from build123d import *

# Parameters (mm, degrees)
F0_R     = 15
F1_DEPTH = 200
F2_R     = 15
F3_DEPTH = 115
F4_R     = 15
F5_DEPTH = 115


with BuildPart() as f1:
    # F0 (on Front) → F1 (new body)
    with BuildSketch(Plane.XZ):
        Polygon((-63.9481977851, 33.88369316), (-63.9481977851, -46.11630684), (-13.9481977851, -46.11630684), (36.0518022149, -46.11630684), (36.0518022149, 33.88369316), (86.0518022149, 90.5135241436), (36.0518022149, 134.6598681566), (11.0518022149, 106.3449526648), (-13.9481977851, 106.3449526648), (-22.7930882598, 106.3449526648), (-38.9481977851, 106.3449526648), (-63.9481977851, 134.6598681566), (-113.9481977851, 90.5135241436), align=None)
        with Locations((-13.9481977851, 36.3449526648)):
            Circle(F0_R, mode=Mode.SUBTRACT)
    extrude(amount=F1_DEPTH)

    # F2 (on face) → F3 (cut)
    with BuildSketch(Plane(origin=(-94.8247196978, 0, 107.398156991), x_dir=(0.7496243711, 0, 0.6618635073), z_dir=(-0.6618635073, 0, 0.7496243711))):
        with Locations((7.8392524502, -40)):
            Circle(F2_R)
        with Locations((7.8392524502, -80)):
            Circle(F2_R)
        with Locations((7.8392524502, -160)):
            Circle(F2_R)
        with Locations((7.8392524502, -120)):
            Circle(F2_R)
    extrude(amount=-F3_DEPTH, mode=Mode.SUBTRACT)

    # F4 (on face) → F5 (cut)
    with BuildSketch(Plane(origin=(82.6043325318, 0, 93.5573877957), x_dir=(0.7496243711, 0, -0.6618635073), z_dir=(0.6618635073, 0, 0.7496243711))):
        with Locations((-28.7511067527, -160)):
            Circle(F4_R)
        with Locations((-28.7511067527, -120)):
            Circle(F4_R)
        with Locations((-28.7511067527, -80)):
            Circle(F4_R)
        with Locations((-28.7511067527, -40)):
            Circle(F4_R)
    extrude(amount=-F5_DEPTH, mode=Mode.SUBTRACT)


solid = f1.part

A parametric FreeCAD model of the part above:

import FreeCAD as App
import Part
import Sketcher

V = App.Vector
Q = App.Units.Quantity


def add_polygon(sketch, points):
    """Adds a closed chain of lines whose ends are joined by coincident constraints."""
    first, n = sketch.GeometryCount, len(points)
    for a, b in zip(points, points[1:] + points[:1]):
        sketch.addGeometry(Part.LineSegment(App.Vector(*a, 0), App.Vector(*b, 0)), False)
    for i in range(n):
        sketch.addConstraint(Sketcher.Constraint("Coincident", first + i, 2, first + (i + 1) % n, 1))

doc = App.newDocument("Part")
body = doc.addObject("PartDesign::Body", "Body")

# Sketch on XZ plane
sketch1 = doc.addObject("Sketcher::SketchObject", "Sketch")
body.addObject(sketch1)
sketch1.AttachmentSupport = (doc.XZ_Plane, [""])
sketch1.MapMode = "FlatFace"
add_polygon(sketch1, [(-64, 34), (-64, -46), (36, -46), (36, 34), (86, 91), (36, 135), (11, 106), (-39, 106), (-64, 135), (-114, 91)])  # lines 0-9
sketch1.addGeometry(Part.Circle(V(-14, 36, 0), V(0, 0, 1), 15), False)  # 10
sketch1.addConstraint([
    Sketcher.Constraint("Vertical", 0),
    Sketcher.Constraint("Horizontal", 1),
    Sketcher.Constraint("Vertical", 2),
    Sketcher.Constraint("Horizontal", 6),
    Sketcher.Constraint("Perpendicular", 3, 4),
    Sketcher.Constraint("Perpendicular", 4, 5),
    Sketcher.Constraint("Perpendicular", 7, 8),
    Sketcher.Constraint("Perpendicular", 8, 9),
    Sketcher.Constraint("Horizontal", 4, 2, 7, 2),
    Sketcher.Constraint("Horizontal", 3, 2, 8, 2),
    Sketcher.Constraint("Horizontal", 2, 2, 9, 2),
    Sketcher.Constraint("Vertical", 2, 2, 4, 2),
    Sketcher.Constraint("Vertical", 0, 2, 7, 2),
    Sketcher.Constraint("Diameter", 10, Q("30 mm")),
    Sketcher.Constraint("DistanceX", 1, 1, 1, 2, Q("100 mm")),
    Sketcher.Constraint("DistanceX", 6, 2, 6, 1, Q("50 mm")),
    Sketcher.Constraint("DistanceY", 0, 2, 0, 1, Q("80 mm")),
    Sketcher.Constraint("DistanceX", 0, 2, 10, 3, Q("50 mm")),
    Sketcher.Constraint("DistanceX", 2, 2, 3, 2, Q("50 mm")),
    Sketcher.Constraint("DistanceY", 10, 3, 5, 2, Q("70 mm")),
    Sketcher.Constraint("Distance", 5, Q("37.772138 mm")),
    Sketcher.Constraint("DistanceY", -1, 1, 4, 2, Q("134.659868 mm")),
    Sketcher.Constraint("DistanceX", 10, 3, -1, 1, Q("13.948198 mm")),
])
pad1 = doc.addObject("PartDesign::Pad", "Pad")
body.addObject(pad1)
pad1.Profile = sketch1
pad1.Length = 200

# Sketch on an angled plane
sketch2 = doc.addObject("Sketcher::SketchObject", "Sketch001")
body.addObject(sketch2)
sketch2.Placement = App.Placement(V(-94.82472, 0, 107.398157), App.Rotation(V(0.749624371, 0, 0.661863507), V(0, 0.999999999, 0), V(-0.661863507, 0, 0.749624371), "ZXY"))
sketch2.addGeometry([
    Part.Circle(V(8, -40, 0), V(0, 0, 1), 15),
    Part.Circle(V(8, -80, 0), V(0, 0, 1), 15),
    Part.Circle(V(8, -160, 0), V(0, 0, 1), 15),
    Part.Circle(V(8, -120, 0), V(0, 0, 1), 15),
], False)
sketch2.addConstraint([
    Sketcher.Constraint("Equal", 0, 1),
    Sketcher.Constraint("Equal", 1, 2),
    Sketcher.Constraint("Equal", 2, 3),
    Sketcher.Constraint("Vertical", 0, 3, 1, 3),
    Sketcher.Constraint("Vertical", 1, 3, 2, 3),
    Sketcher.Constraint("Vertical", 2, 3, 3, 3),
    Sketcher.Constraint("Diameter", 0, Q("30 mm")),
    Sketcher.Constraint("DistanceY", 0, 3, -1, 1, Q("40 mm")),
    Sketcher.Constraint("DistanceY", 1, 3, -1, 1, Q("80 mm")),
    Sketcher.Constraint("DistanceY", 2, 3, -1, 1, Q("160 mm")),
    Sketcher.Constraint("DistanceY", 3, 3, -1, 1, Q("120 mm")),
    Sketcher.Constraint("DistanceX", -1, 1, 0, 3, Q("7.839252 mm")),
])
pocket1 = doc.addObject("PartDesign::Pocket", "Pocket")
body.addObject(pocket1)
pocket1.Profile = sketch2
pocket1.Length = 115

# Sketch on an angled plane
sketch3 = doc.addObject("Sketcher::SketchObject", "Sketch002")
body.addObject(sketch3)
sketch3.Placement = App.Placement(V(82.604333, 0, 93.557388), App.Rotation(V(0.749624371, 0, -0.661863507), V(0, 0.999999999, 0), V(0.661863507, 0, 0.749624371), "ZXY"))
sketch3.addGeometry([
    Part.Circle(V(-29, -160, 0), V(0, 0, 1), 15),
    Part.Circle(V(-29, -120, 0), V(0, 0, 1), 15),
    Part.Circle(V(-29, -80, 0), V(0, 0, 1), 15),
    Part.Circle(V(-29, -40, 0), V(0, 0, 1), 15),
], False)
sketch3.addConstraint([
    Sketcher.Constraint("Equal", 0, 1),
    Sketcher.Constraint("Equal", 1, 2),
    Sketcher.Constraint("Equal", 2, 3),
    Sketcher.Constraint("Vertical", 0, 3, 1, 3),
    Sketcher.Constraint("Vertical", 1, 3, 2, 3),
    Sketcher.Constraint("Vertical", 2, 3, 3, 3),
    Sketcher.Constraint("Diameter", 0, Q("30 mm")),
    Sketcher.Constraint("DistanceY", 0, 3, -1, 1, Q("160 mm")),
    Sketcher.Constraint("DistanceY", 1, 3, -1, 1, Q("120 mm")),
    Sketcher.Constraint("DistanceY", 2, 3, -1, 1, Q("80 mm")),
    Sketcher.Constraint("DistanceY", 3, 3, -1, 1, Q("40 mm")),
    Sketcher.Constraint("DistanceX", 0, 3, -1, 1, Q("28.751107 mm")),
])
pocket2 = doc.addObject("PartDesign::Pocket", "Pocket001")
body.addObject(pocket2)
pocket2.Profile = sketch3
pocket2.Length = 115

doc.recompute()
